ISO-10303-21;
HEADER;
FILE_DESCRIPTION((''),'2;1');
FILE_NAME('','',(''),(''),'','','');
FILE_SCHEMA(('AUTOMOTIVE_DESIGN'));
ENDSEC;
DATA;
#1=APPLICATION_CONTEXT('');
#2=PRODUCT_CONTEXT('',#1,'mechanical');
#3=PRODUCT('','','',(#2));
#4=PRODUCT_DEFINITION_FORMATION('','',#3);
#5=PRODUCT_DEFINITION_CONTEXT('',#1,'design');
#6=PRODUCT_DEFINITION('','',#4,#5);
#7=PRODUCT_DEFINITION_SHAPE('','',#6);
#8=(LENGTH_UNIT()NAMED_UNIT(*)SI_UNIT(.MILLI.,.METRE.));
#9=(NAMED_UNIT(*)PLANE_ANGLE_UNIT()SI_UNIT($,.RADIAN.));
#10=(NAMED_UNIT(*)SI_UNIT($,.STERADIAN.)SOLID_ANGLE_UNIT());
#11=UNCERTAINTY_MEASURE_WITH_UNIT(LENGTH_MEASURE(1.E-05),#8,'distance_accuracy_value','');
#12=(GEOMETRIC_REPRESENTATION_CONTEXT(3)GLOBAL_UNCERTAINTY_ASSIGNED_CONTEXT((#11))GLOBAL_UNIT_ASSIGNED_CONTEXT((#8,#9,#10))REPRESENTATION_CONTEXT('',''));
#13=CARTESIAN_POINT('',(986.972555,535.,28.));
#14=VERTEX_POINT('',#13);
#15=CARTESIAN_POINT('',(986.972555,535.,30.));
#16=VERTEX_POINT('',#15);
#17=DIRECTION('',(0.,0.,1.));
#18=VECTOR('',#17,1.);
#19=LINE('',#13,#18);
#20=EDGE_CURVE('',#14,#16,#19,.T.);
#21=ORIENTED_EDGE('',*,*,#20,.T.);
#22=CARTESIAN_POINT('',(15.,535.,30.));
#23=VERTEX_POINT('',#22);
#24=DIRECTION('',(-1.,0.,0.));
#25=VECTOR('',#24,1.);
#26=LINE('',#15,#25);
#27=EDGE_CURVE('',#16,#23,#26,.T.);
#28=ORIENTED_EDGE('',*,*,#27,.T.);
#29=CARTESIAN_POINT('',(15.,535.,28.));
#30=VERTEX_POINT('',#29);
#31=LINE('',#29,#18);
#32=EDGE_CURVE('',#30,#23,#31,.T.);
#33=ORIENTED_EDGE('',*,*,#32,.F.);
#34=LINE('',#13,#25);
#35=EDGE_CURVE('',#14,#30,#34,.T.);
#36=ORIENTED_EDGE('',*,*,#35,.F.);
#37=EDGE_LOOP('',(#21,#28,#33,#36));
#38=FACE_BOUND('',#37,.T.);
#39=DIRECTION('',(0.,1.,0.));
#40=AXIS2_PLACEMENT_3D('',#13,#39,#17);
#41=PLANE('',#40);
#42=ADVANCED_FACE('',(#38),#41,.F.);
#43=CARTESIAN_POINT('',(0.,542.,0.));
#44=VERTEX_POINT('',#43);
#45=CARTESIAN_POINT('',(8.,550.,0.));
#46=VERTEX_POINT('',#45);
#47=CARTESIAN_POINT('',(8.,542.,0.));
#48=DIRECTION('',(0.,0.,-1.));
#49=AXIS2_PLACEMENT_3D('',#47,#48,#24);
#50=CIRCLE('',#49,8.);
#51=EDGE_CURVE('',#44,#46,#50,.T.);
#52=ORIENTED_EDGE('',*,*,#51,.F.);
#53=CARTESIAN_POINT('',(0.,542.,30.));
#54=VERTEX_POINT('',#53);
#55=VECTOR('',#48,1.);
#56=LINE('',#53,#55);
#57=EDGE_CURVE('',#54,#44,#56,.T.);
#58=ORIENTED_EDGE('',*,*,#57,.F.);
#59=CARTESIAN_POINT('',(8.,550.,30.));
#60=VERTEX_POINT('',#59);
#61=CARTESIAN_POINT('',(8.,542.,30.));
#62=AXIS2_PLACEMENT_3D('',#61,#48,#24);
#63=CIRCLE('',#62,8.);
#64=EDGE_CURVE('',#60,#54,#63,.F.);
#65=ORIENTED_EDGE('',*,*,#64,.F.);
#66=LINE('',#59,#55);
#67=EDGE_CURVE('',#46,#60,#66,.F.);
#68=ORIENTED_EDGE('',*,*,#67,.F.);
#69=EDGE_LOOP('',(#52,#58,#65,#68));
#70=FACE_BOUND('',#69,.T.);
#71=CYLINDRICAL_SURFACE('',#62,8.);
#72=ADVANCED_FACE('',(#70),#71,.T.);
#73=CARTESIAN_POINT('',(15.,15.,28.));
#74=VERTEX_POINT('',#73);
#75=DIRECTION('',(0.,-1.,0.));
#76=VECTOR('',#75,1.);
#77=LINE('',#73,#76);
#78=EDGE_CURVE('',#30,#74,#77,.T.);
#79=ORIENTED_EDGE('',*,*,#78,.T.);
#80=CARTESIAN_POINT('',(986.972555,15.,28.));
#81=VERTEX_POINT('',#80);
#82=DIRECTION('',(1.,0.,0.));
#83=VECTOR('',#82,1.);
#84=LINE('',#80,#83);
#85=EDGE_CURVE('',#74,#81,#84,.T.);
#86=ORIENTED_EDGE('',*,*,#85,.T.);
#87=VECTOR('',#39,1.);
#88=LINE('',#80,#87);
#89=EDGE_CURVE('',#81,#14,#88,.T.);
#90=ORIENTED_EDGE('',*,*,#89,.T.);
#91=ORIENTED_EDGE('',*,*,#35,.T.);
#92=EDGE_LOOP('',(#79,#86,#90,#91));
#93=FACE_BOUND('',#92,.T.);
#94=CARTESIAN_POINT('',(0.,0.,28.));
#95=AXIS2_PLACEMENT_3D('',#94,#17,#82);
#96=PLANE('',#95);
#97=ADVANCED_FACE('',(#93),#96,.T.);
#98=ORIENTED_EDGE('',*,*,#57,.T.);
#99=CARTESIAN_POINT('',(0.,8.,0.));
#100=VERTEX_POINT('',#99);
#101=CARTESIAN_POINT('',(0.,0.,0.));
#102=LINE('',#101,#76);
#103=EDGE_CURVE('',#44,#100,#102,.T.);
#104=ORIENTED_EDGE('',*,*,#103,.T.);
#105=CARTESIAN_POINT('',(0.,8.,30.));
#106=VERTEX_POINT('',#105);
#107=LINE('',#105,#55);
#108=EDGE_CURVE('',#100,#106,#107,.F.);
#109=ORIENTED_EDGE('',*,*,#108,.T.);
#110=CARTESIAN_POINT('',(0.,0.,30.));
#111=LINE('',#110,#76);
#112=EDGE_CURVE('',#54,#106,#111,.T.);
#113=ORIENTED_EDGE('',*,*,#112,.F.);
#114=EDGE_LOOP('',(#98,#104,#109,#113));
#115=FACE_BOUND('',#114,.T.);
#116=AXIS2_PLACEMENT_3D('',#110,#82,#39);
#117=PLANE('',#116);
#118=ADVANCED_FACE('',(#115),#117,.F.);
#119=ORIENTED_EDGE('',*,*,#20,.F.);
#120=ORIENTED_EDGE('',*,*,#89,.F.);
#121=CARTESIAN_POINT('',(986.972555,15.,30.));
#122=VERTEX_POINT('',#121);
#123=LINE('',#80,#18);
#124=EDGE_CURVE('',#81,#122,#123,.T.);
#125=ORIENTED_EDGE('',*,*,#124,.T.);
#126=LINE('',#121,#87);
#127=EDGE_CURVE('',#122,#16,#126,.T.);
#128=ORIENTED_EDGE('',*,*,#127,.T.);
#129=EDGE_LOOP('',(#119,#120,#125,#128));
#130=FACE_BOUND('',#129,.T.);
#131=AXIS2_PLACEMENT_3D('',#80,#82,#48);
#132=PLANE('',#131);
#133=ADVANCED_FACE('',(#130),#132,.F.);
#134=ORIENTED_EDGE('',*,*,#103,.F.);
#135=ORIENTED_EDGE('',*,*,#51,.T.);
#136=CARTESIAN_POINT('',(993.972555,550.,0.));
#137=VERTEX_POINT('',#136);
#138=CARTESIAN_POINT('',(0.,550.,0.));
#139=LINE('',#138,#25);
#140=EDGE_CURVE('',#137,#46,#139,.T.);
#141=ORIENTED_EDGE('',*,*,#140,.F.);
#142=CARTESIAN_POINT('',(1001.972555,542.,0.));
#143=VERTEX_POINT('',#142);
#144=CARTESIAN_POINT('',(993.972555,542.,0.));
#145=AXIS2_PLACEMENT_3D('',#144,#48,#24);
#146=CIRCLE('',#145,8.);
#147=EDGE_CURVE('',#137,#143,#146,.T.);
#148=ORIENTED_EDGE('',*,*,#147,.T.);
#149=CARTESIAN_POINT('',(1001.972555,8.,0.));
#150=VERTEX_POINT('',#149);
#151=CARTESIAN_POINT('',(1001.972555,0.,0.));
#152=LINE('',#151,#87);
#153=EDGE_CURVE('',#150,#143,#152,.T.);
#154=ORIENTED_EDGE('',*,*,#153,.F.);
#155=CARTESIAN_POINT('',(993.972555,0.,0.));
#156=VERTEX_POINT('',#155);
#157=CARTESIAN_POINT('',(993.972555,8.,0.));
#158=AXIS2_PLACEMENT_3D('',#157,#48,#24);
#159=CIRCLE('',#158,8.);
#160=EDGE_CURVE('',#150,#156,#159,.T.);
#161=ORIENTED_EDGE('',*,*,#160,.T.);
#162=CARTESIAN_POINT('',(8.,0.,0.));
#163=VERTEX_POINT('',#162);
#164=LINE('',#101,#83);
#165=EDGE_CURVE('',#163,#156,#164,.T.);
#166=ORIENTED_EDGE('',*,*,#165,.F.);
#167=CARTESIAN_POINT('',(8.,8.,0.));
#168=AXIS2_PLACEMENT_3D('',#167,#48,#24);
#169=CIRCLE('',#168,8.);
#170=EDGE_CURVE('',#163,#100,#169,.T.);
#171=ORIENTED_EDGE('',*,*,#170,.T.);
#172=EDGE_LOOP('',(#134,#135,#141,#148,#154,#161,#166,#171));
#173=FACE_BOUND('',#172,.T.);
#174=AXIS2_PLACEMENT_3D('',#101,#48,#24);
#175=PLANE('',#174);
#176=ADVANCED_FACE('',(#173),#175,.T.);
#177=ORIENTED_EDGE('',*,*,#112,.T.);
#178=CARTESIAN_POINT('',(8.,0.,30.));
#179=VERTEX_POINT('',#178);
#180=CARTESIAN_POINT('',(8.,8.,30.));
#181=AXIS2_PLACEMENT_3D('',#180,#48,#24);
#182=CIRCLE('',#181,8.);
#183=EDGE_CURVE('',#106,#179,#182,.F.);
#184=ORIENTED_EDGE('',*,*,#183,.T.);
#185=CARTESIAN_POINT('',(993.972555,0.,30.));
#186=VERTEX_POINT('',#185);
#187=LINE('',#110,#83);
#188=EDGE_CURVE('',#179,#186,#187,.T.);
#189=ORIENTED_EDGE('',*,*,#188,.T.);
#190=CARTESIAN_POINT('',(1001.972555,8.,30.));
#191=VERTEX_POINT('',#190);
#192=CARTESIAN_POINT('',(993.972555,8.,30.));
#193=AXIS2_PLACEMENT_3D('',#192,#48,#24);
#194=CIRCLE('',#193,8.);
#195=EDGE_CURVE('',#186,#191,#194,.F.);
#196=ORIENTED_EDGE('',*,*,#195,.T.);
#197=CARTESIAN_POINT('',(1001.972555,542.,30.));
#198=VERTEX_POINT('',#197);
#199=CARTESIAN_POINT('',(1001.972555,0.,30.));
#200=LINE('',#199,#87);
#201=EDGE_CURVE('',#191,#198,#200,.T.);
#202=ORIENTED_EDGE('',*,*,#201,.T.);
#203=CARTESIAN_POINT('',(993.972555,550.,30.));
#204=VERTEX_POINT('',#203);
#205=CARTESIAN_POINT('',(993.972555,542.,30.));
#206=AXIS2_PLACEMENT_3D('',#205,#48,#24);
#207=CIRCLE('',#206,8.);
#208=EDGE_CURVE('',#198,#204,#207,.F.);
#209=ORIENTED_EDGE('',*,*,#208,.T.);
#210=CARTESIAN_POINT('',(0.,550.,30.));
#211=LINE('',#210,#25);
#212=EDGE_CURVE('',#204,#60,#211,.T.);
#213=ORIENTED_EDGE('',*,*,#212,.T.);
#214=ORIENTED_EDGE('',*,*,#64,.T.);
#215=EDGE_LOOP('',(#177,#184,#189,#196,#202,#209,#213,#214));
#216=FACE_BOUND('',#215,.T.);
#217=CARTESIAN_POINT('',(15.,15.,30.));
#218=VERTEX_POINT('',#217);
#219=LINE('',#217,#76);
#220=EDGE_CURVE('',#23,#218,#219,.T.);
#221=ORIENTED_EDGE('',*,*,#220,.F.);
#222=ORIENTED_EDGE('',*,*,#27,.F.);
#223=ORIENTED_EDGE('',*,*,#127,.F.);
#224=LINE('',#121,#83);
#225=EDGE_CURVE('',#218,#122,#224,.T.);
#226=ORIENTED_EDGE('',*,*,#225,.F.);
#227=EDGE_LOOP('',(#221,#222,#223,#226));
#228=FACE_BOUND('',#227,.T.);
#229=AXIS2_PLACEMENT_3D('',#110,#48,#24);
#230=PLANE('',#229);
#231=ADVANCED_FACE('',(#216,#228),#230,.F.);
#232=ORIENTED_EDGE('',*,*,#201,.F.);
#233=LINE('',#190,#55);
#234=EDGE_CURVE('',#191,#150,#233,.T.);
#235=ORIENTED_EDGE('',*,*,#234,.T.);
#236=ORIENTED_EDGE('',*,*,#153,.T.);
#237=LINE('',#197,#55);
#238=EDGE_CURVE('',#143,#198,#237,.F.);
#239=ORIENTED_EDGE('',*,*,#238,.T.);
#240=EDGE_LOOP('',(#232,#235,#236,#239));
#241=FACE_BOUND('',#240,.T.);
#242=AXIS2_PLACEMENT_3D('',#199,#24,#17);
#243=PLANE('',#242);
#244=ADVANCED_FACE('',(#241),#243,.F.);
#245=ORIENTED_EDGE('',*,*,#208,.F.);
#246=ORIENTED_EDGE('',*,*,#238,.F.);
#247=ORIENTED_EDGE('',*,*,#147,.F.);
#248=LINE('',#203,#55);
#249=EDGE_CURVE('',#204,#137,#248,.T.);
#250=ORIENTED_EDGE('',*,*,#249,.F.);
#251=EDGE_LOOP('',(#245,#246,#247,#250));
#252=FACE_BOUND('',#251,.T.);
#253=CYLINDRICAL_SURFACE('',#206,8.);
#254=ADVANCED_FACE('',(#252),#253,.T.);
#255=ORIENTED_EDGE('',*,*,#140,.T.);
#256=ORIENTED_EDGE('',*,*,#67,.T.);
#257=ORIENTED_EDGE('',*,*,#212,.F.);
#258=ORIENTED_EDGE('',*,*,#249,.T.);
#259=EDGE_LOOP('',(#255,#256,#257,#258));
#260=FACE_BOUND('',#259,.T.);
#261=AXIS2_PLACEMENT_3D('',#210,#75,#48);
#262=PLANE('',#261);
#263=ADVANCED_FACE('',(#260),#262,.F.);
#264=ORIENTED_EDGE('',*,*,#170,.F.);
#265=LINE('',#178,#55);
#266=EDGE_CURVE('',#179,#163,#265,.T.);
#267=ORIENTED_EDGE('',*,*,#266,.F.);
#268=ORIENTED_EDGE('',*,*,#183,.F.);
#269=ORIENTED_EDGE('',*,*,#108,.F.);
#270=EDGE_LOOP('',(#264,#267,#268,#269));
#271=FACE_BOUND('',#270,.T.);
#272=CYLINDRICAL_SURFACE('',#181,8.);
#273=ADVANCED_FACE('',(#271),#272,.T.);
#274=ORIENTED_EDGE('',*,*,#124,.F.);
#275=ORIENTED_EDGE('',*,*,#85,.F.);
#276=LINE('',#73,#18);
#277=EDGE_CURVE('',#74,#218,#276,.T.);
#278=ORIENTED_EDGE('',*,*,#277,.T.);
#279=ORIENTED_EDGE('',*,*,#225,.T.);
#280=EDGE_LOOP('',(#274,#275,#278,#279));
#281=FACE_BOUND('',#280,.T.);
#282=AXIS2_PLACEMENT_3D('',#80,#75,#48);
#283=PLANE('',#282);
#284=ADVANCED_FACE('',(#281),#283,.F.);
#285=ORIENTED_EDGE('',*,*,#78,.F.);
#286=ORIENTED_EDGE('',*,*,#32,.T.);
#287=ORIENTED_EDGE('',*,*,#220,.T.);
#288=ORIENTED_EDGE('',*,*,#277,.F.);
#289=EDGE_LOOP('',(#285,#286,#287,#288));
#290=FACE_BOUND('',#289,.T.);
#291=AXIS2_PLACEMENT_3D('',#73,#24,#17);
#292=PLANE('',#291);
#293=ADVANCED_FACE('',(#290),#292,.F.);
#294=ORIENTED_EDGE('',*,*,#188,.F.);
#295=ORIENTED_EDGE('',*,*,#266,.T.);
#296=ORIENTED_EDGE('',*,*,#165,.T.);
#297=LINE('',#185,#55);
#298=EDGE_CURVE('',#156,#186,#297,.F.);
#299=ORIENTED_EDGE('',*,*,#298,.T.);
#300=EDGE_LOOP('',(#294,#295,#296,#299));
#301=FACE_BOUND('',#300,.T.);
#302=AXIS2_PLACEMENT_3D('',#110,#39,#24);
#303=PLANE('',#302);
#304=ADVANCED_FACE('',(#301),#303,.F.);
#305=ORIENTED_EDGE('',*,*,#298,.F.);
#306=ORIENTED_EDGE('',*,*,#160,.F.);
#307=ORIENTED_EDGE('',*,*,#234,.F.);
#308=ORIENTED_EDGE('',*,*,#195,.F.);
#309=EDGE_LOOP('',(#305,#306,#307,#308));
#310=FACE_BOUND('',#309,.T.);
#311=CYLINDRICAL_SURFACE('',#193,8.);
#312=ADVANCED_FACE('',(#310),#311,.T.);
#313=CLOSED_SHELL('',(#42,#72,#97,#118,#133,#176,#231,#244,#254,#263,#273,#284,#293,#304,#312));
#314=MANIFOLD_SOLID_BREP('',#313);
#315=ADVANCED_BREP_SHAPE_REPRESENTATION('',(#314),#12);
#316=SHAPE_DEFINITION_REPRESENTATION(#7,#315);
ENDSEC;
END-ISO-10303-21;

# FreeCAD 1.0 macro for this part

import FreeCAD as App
import Part
import Sketcher

V = App.Vector


def edges_at(feature, points):
    """Names of the edges that pass closest to the given points."""
    edges = feature.Shape.Edges
    near = lambda p: min(range(len(edges)), key=lambda i: edges[i].distToShape(Part.Vertex(*p))[0])
    return sorted({f"Edge{near(p) + 1}" for p in points})


def add_polygon(sketch, points):
    """Adds a closed chain of lines whose ends are joined by coincident constraints."""
    first, n = sketch.GeometryCount, len(points)
    for a, b in zip(points, points[1:] + points[:1]):
        sketch.addGeometry(Part.LineSegment(App.Vector(*a, 0), App.Vector(*b, 0)), False)
    for i in range(n):
        sketch.addConstraint(Sketcher.Constraint("Coincident", first + i, 2, first + (i + 1) % n, 1))

doc = App.newDocument("Part")
params = doc.addObject("Spreadsheet::Sheet", "Params")
for row, (alias, value) in enumerate([
    ("sketch1_height", "550 mm"),
    ("pad1_length", "30 mm"),
    ("sketch2_height", "520 mm"),
    ("pocket1_length", "2 mm"),
    ("fillet_radius", "8 mm"),
], start=1):
    params.set(f"A{row}", alias)
    params.set(f"B{row}", "=" + value)
    params.setAlias(f"B{row}", alias)

body = doc.addObject("PartDesign::Body", "Body")

# Sketch on XY plane
sketch1 = body.newObject("Sketcher::SketchObject", "Sketch")
sketch1.AttachmentSupport = (doc.getObject("XY_Plane"), [""])
sketch1.MapMode = "FlatFace"
add_polygon(sketch1, [(0, 550), (0, 0), (1002, 0), (1002, 550)])  # lines 0-3
sketch1.addConstraint([
    Sketcher.Constraint("Vertical", 0),
    Sketcher.Constraint("Horizontal", 1),
    Sketcher.Constraint("Vertical", 2),
    Sketcher.Constraint("Horizontal", 3),
    Sketcher.Constraint("Coincident", 0, 2, -1, 1),
    Sketcher.Constraint("DistanceY", 0, 2, 0, 1, 550.0),
    Sketcher.Constraint("DistanceX", 1, 1, 1, 2, 1001.972555),
])
sketch1.setExpression("Constraints[9]", "Params.sketch1_height")
pad1 = body.newObject("PartDesign::Pad", "Pad")
pad1.Profile = sketch1
pad1.setExpression("Length", "Params.pad1_length")

# Sketch on XY plane
sketch2 = body.newObject("Sketcher::SketchObject", "Sketch001")
sketch2.AttachmentSupport = (doc.getObject("XY_Plane"), [""])
sketch2.MapMode = "FlatFace"
sketch2.AttachmentOffset = App.Placement(V(0, 0, 30), App.Rotation())
add_polygon(sketch2, [(15, 535), (15, 15), (987, 15), (987, 535)])  # lines 0-3
sketch2.addConstraint([
    Sketcher.Constraint("Vertical", 0),
    Sketcher.Constraint("Horizontal", 1),
    Sketcher.Constraint("Vertical", 2),
    Sketcher.Constraint("Horizontal", 3),
    Sketcher.Constraint("DistanceY", 0, 2, 0, 1, 520.0),
    Sketcher.Constraint("DistanceX", -1, 1, 0, 2, 15.0),
    Sketcher.Constraint("DistanceY", -1, 1, 0, 2, 15.0),
    Sketcher.Constraint("DistanceX", 1, 1, 1, 2, 971.972555),
])
sketch2.setExpression("Constraints[8]", "Params.sketch2_height")
pocket1 = body.newObject("PartDesign::Pocket", "Pocket")
pocket1.Profile = sketch2
pocket1.setExpression("Length", "Params.pocket1_length")
doc.recompute()

fillet = body.newObject("PartDesign::Fillet", "Fillet")
fillet.Base = (pocket1, edges_at(pocket1, [
    (0, 550, 15),
    (1001.973, 550, 15),
    (1001.973, 0, 15),
    (0, 0, 15),
]))
fillet.setExpression("Radius", "Params.fillet_radius")

doc.recompute()
